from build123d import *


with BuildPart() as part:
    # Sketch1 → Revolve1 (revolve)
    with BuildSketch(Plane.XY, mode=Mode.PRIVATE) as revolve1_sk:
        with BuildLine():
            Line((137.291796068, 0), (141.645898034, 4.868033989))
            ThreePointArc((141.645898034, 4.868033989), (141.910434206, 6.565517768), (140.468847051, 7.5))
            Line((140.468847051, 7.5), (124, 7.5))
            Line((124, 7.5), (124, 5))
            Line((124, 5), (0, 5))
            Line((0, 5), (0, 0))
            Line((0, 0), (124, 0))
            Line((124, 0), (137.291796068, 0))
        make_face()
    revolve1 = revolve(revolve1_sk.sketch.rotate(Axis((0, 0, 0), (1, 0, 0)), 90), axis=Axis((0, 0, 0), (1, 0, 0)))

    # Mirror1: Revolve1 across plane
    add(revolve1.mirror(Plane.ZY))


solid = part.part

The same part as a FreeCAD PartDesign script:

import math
import FreeCAD as App
import Part
import Sketcher
Q = App.Units.Quantity

doc = App.newDocument("Part")
body = doc.addObject("PartDesign::Body", "Body")

# Sketch on XY plane
sketch1 = body.newObject("Sketcher::SketchObject", "Sketch")
sketch1.AttachmentSupport = (doc.getObject("XY_Plane"), [""])
sketch1.MapMode = "FlatFace"
sketch1.addGeometry([
    Part.LineSegment(App.Vector(137.291796, 0, 0), App.Vector(141.645898, 4.868034, 0)),  # 0
    Part.ArcOfCircle(Part.Circle(App.Vector(140.468847, 5.92082, 0), App.Vector(0, 0, 1), 1.57918), math.radians(-41.810315), math.radians(90)),  # 1
    Part.LineSegment(App.Vector(140.468847, 7.5, 0), App.Vector(124, 7.5, 0)),  # 2
    Part.LineSegment(App.Vector(124, 7.5, 0), App.Vector(124, 5, 0)),  # 3
    Part.LineSegment(App.Vector(124, 5, 0), App.Vector(0, 5, 0)),  # 4
    Part.LineSegment(App.Vector(0, 5, 0), App.Vector(0, 0, 0)),  # 5
    Part.LineSegment(App.Vector(0, 0, 0), App.Vector(137.291796, 0, 0)),  # 6
], False)
sketch1.addConstraint([
    Sketcher.Constraint("Tangent", 0, 2, 1, 1),
    Sketcher.Constraint("Tangent", 1, 2, 2, 1),
    Sketcher.Constraint("Coincident", 2, 2, 3, 1),
    Sketcher.Constraint("Coincident", 3, 2, 4, 1),
    Sketcher.Constraint("Coincident", 4, 2, 5, 1),
    Sketcher.Constraint("Coincident", 5, 2, 6, 1),
    Sketcher.Constraint("Coincident", 6, 2, 0, 1),
    Sketcher.Constraint("Horizontal", 2),
    Sketcher.Constraint("Vertical", 3),
    Sketcher.Constraint("Horizontal", 4),
    Sketcher.Constraint("Vertical", 5),
    Sketcher.Constraint("Horizontal", 6),
    Sketcher.Constraint("Coincident", 5, 2, -1, 1),
    Sketcher.Constraint("DistanceX", 4, 2, 4, 1, Q("124 mm")),
    Sketcher.Constraint("DistanceY", 5, 2, 5, 1, Q("5 mm")),
    Sketcher.Constraint("DistanceY", 3, 2, 3, 1, Q("2.5 mm")),
    Sketcher.Constraint("Radius", 1, Q("1.57918 mm")),
    Sketcher.Constraint("DistanceX", -1, 1, 0, 2, Q("141.645898 mm")),
    Sketcher.Constraint("DistanceX", 6, 2, 0, 2, Q("4.354102 mm")),
])
revolution = body.newObject("PartDesign::Revolution", "Revolution")
revolution.Profile = sketch1
revolution.ReferenceAxis = (sketch1, ["H_Axis"])
revolution.Angle = 360
doc.recompute()

mirrored = body.newObject("PartDesign::Mirrored", "Mirrored")
mirrored.Originals = [revolution]
mirrored.MirrorPlane = (doc.getObject("YZ_Plane"), [""])
body.Tip = mirrored

doc.recompute()
